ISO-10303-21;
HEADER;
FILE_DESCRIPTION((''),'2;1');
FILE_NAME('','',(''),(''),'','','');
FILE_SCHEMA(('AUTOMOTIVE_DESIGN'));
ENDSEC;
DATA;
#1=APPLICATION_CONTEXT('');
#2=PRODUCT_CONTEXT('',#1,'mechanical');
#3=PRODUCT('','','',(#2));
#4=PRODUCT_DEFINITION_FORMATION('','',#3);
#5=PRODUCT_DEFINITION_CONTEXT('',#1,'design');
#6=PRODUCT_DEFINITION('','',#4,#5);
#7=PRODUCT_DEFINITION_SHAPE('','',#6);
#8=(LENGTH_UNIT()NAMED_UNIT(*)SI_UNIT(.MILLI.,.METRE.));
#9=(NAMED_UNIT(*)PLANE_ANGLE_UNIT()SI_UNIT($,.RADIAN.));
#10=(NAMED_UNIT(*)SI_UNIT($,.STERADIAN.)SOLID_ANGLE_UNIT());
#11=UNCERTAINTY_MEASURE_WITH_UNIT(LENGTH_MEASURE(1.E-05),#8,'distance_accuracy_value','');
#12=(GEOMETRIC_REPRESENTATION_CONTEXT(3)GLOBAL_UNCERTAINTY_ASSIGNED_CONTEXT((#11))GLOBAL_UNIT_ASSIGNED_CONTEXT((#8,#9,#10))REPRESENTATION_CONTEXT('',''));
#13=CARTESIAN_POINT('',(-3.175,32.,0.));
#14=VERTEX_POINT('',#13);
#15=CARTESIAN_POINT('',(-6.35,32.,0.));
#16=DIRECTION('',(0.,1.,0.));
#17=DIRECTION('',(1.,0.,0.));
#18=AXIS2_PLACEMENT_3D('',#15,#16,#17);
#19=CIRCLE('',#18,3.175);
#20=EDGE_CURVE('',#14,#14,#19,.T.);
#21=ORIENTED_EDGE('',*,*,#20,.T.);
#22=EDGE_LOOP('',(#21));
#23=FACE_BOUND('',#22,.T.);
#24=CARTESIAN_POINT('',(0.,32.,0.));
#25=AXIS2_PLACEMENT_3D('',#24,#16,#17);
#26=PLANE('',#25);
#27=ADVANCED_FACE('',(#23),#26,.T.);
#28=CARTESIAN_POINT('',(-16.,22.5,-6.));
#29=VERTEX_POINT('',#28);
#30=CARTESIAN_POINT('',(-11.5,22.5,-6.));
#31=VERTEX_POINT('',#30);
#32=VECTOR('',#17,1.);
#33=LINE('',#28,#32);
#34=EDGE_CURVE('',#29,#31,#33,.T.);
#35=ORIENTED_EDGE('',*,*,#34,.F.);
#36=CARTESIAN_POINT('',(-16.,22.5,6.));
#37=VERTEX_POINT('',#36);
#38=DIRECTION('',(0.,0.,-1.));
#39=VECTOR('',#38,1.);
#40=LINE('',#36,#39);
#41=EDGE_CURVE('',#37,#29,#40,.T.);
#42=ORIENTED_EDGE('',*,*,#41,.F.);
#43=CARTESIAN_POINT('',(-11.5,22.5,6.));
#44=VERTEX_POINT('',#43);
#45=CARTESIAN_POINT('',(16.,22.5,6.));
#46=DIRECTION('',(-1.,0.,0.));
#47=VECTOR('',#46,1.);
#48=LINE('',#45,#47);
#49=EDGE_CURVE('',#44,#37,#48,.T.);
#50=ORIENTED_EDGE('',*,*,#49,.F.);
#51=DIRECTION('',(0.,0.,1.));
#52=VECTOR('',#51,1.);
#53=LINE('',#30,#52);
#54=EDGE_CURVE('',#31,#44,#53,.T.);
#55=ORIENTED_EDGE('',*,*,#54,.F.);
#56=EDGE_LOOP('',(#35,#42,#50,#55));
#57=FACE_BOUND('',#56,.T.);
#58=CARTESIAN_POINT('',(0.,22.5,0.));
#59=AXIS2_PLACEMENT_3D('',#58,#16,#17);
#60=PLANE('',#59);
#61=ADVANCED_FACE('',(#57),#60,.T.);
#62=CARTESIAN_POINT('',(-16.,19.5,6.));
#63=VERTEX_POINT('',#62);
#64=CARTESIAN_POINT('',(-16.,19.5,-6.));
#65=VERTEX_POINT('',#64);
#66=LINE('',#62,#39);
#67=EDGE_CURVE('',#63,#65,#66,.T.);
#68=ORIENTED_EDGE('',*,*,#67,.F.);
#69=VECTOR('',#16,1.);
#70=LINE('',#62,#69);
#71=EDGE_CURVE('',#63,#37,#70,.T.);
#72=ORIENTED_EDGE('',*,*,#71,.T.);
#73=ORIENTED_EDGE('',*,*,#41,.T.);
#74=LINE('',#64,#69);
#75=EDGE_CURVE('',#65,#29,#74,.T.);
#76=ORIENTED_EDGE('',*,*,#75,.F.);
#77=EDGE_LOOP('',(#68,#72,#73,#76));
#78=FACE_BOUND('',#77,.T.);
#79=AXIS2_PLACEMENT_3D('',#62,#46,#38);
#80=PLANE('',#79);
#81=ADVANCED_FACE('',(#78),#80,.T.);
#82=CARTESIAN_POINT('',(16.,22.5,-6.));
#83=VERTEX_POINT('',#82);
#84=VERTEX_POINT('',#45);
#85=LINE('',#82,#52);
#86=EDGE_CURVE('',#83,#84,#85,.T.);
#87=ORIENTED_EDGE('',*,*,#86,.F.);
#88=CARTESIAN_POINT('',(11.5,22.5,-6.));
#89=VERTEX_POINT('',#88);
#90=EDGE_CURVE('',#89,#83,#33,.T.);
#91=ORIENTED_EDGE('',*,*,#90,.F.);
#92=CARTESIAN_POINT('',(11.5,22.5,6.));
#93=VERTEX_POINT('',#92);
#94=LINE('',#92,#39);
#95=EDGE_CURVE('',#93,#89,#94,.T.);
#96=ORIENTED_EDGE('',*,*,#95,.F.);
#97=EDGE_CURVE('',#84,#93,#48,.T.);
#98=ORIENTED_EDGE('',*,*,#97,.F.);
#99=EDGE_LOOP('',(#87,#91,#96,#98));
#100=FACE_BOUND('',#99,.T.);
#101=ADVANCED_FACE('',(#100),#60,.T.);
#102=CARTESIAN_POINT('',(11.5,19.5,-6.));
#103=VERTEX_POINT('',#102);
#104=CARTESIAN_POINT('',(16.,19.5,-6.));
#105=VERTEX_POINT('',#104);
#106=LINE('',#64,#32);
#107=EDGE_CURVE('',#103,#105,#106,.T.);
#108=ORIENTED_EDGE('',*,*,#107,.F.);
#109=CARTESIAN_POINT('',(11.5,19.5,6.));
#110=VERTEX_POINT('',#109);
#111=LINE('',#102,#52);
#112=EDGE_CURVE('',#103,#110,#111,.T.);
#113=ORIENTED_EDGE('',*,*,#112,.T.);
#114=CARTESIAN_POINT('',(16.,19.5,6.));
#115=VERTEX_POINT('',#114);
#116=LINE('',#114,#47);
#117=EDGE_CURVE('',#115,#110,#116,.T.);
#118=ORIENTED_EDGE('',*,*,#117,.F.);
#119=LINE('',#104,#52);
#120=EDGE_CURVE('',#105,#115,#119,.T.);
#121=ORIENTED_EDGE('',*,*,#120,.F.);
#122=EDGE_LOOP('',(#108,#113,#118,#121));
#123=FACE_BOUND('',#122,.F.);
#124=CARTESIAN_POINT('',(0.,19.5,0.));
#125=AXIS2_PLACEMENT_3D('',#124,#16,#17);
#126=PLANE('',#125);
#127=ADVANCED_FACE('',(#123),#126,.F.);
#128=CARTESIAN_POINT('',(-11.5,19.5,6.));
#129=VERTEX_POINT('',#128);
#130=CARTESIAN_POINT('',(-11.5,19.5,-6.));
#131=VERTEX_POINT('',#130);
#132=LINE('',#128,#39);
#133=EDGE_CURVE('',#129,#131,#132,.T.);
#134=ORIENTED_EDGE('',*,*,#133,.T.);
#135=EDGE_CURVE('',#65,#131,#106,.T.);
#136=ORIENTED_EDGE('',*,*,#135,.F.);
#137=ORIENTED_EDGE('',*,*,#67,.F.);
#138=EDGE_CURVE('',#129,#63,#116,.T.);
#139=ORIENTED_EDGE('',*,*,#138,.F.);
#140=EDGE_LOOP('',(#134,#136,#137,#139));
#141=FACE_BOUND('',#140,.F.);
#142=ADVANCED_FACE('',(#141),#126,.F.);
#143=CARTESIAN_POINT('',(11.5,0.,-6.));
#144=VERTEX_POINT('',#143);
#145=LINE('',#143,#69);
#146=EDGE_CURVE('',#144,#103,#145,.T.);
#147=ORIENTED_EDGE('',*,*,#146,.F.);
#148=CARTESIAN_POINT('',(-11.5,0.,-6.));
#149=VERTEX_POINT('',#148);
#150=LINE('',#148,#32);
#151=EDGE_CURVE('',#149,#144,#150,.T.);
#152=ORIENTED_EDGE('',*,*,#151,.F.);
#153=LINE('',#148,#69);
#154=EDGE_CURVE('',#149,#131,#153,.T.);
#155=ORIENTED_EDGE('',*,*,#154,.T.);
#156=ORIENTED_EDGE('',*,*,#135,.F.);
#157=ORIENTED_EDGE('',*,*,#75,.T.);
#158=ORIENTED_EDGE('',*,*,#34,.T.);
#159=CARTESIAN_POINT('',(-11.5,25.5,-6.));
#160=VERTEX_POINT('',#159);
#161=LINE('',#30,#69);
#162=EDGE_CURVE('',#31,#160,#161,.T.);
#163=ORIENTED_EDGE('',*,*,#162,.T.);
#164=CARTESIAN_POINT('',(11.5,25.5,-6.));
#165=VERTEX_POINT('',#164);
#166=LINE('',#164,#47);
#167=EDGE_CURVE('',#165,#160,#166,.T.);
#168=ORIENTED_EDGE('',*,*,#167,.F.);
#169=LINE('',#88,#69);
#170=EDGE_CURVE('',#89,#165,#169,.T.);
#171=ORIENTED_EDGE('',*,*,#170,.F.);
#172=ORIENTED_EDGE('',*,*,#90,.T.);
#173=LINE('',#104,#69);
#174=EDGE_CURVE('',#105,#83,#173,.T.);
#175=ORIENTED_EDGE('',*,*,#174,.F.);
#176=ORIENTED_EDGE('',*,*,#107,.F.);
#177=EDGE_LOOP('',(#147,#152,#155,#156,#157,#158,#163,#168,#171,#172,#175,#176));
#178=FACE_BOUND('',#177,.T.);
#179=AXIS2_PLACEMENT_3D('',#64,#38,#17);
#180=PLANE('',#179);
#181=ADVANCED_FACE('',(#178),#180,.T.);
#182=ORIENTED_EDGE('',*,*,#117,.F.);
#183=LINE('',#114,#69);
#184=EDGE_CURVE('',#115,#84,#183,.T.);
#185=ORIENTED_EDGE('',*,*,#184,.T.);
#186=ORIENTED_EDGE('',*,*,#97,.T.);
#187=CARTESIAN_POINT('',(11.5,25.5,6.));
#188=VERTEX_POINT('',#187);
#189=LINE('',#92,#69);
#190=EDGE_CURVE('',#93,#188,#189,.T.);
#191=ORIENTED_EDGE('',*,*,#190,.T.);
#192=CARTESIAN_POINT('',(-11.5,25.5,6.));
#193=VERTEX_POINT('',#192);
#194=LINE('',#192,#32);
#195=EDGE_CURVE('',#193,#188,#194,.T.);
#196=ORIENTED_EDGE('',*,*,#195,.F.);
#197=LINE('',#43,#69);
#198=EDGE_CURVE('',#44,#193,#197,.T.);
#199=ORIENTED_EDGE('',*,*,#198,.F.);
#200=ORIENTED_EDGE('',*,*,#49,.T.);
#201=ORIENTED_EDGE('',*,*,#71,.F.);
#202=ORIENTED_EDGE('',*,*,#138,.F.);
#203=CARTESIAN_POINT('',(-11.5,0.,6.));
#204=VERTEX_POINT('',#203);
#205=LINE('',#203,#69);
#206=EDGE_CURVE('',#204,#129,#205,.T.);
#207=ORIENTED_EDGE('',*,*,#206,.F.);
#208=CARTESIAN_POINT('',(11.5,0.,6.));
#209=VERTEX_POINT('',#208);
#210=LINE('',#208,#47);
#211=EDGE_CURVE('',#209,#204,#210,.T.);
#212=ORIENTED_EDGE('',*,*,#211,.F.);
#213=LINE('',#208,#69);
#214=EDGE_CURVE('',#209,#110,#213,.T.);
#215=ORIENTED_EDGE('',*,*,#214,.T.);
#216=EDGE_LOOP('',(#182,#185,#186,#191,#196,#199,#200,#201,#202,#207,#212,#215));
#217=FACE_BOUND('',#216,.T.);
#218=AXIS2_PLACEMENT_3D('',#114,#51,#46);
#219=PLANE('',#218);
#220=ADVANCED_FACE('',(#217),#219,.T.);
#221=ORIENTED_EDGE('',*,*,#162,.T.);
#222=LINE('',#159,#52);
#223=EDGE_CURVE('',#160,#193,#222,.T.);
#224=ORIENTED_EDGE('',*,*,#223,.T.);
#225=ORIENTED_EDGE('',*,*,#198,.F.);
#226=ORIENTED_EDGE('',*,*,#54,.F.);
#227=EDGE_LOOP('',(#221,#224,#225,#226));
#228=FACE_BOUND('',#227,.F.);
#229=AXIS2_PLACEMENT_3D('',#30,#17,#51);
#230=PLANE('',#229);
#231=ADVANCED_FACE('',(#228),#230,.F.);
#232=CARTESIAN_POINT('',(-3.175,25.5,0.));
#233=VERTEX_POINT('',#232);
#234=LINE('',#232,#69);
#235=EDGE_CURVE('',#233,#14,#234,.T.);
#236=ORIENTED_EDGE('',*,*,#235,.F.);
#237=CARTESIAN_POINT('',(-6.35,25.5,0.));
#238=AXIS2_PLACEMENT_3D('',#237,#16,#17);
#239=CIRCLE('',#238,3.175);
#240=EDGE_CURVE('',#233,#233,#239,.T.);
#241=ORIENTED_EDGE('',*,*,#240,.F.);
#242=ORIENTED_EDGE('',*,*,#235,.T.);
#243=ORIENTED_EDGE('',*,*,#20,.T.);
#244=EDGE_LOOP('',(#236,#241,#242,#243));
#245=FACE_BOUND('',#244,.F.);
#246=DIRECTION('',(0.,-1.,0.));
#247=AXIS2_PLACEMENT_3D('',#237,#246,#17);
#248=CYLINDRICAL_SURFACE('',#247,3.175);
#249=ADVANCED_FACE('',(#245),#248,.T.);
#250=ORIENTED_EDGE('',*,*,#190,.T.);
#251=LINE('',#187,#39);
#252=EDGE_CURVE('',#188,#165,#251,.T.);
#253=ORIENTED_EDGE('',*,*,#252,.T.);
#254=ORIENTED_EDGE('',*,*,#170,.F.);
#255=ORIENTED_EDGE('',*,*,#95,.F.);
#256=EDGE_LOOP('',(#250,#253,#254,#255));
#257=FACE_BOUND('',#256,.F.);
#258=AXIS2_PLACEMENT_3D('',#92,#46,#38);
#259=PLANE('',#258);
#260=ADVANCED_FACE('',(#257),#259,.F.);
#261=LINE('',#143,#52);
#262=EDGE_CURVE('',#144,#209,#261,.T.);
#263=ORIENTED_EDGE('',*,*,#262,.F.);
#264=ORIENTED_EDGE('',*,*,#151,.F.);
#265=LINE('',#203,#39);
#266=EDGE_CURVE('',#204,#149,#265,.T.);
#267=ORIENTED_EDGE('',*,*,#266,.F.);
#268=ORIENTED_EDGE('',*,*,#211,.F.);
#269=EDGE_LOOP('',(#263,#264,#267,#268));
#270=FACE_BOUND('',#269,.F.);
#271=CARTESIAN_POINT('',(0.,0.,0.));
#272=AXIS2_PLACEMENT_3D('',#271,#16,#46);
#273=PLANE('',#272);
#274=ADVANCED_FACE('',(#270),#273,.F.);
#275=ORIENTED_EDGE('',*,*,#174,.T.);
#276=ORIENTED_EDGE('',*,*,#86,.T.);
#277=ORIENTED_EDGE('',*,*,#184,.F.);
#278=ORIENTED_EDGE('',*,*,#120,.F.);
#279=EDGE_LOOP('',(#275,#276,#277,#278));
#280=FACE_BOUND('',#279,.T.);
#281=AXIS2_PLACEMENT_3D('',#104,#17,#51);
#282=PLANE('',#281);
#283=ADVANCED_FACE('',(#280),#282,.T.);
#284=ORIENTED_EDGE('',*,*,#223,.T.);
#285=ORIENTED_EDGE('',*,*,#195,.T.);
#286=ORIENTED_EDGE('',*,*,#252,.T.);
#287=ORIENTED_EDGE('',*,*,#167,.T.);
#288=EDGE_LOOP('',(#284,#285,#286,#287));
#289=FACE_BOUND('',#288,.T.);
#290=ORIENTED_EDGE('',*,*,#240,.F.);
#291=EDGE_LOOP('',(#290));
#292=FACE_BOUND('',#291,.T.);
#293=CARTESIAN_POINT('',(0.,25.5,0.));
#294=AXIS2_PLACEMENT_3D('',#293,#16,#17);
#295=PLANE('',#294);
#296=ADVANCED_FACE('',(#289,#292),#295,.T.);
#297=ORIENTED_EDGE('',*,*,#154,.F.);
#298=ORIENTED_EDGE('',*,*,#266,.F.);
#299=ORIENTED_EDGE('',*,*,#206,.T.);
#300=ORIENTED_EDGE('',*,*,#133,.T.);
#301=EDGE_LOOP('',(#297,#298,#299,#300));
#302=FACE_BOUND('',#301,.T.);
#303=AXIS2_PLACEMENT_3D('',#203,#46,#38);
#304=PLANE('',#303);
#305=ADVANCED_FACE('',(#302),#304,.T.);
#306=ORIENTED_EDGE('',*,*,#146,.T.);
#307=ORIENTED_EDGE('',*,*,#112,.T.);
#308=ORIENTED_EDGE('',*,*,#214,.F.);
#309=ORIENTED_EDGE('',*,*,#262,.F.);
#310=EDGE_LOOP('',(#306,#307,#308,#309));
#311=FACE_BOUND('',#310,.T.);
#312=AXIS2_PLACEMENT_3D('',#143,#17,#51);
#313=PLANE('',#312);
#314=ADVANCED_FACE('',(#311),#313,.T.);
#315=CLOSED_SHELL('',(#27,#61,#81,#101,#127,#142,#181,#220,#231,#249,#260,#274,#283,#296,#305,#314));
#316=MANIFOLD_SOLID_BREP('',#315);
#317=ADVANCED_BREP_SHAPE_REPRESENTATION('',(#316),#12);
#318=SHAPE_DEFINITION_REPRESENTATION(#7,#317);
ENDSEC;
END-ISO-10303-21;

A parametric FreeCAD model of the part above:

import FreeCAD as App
import Part
import Sketcher
from FreeCAD import Vector
Q = App.Units.Quantity


def add_polygon(sketch, points):
    """Adds a closed chain of lines whose ends are joined by coincident constraints."""
    first, n = sketch.GeometryCount, len(points)
    for a, b in zip(points, points[1:] + points[:1]):
        sketch.addGeometry(Part.LineSegment(App.Vector(*a, 0), App.Vector(*b, 0)), False)
    for i in range(n):
        sketch.addConstraint(Sketcher.Constraint("Coincident", first + i, 2, first + (i + 1) % n, 1))

doc = App.newDocument("Part")
params = doc.addObject("Spreadsheet::Sheet", "Params")
for row, (alias, value) in enumerate([
    ("sketch1_width", "23 mm"),
    ("sketch1_height", "12 mm"),
    ("pad1_length", "19.5 mm"),
    ("sketch2_width", "32 mm"),
    ("sketch2_height", "12 mm"),
    ("pad2_length", "3 mm"),
    ("sketch3_width", "23 mm"),
    ("sketch3_height", "12 mm"),
    ("pad3_length", "3 mm"),
    ("sketch4_diameter", "6.35 mm"),
    ("pad4_length", "6.5 mm"),
], start=1):
    params.set(f"A{row}", alias)
    params.set(f"B{row}", "=" + value)
    params.setAlias(f"B{row}", alias)

body = doc.addObject("PartDesign::Body", "Body")

sketch1 = body.newObject("Sketcher::SketchObject", "Sketch")
sketch1.AttachmentSupport = (doc.getObject("XZ_Plane"), [""])
sketch1.MapMode = "FlatFace"
add_polygon(sketch1, [(11.5, -6), (-11.5, -6), (-11.5, 6), (11.5, 6)])
sketch1.addConstraint(Sketcher.Constraint("Horizontal", 0))
sketch1.addConstraint(Sketcher.Constraint("Vertical", 1))
sketch1.addConstraint(Sketcher.Constraint("Horizontal", 2))
sketch1.addConstraint(Sketcher.Constraint("Vertical", 3))
sketch1.addConstraint(Sketcher.Constraint("Symmetric", 0, 2, 2, 2, -1, 1))
sketch1.addConstraint(Sketcher.Constraint("DistanceX", 0, 2, 0, 1, Q("23 mm")))
sketch1.addConstraint(Sketcher.Constraint("DistanceY", 1, 1, 1, 2, Q("12 mm")))
sketch1.setExpression("Constraints[9]", "Params.sketch1_width")
sketch1.setExpression("Constraints[10]", "Params.sketch1_height")
pad1 = body.newObject("PartDesign::Pad", "Pad")
pad1.Profile = sketch1
pad1.setExpression("Length", "Params.pad1_length")
pad1.Reversed = True

sketch2 = body.newObject("Sketcher::SketchObject", "Sketch001")
sketch2.AttachmentSupport = (doc.getObject("XZ_Plane"), [""])
sketch2.MapMode = "FlatFace"
sketch2.AttachmentOffset = App.Placement(Vector(0, 0, -19.5), App.Rotation())
add_polygon(sketch2, [(-16, 6), (16, 6), (16, -6), (-16, -6)])
sketch2.addConstraint(Sketcher.Constraint("Horizontal", 0))
sketch2.addConstraint(Sketcher.Constraint("Vertical", 1))
sketch2.addConstraint(Sketcher.Constraint("Horizontal", 2))
sketch2.addConstraint(Sketcher.Constraint("Vertical", 3))
sketch2.addConstraint(Sketcher.Constraint("Symmetric", 0, 2, 2, 2, -1, 1))
sketch2.addConstraint(Sketcher.Constraint("DistanceX", 0, 1, 0, 2, Q("32 mm")))
sketch2.addConstraint(Sketcher.Constraint("DistanceY", 1, 2, 1, 1, Q("12 mm")))
sketch2.setExpression("Constraints[9]", "Params.sketch2_width")
sketch2.setExpression("Constraints[10]", "Params.sketch2_height")
pad2 = body.newObject("PartDesign::Pad", "Pad001")
pad2.Profile = sketch2
pad2.setExpression("Length", "Params.pad2_length")
pad2.Reversed = True

sketch3 = body.newObject("Sketcher::SketchObject", "Sketch002")
sketch3.AttachmentSupport = (doc.getObject("XZ_Plane"), [""])
sketch3.MapMode = "FlatFace"
sketch3.AttachmentOffset = App.Placement(Vector(0, 0, -22.5), App.Rotation())
add_polygon(sketch3, [(-11.5, -6), (-11.5, 6), (11.5, 6), (11.5, -6)])
sketch3.addConstraint(Sketcher.Constraint("Vertical", 0))
sketch3.addConstraint(Sketcher.Constraint("Horizontal", 1))
sketch3.addConstraint(Sketcher.Constraint("Vertical", 2))
sketch3.addConstraint(Sketcher.Constraint("Horizontal", 3))
sketch3.addConstraint(Sketcher.Constraint("Symmetric", 0, 2, 2, 2, -1, 1))
sketch3.addConstraint(Sketcher.Constraint("DistanceX", 1, 1, 1, 2, Q("23 mm")))
sketch3.addConstraint(Sketcher.Constraint("DistanceY", 0, 1, 0, 2, Q("12 mm")))
sketch3.setExpression("Constraints[9]", "Params.sketch3_width")
sketch3.setExpression("Constraints[10]", "Params.sketch3_height")
pad3 = body.newObject("PartDesign::Pad", "Pad002")
pad3.Profile = sketch3
pad3.setExpression("Length", "Params.pad3_length")
pad3.Reversed = True

sketch4 = body.newObject("Sketcher::SketchObject", "Sketch003")
sketch4.AttachmentSupport = (doc.getObject("XZ_Plane"), [""])
sketch4.MapMode = "FlatFace"
sketch4.AttachmentOffset = App.Placement(Vector(0, 0, -25.5), App.Rotation())
sketch4.addGeometry(Part.Circle(Vector(-6.35, 0, 0), Vector(0, 0, 1), 3.175), False)
sketch4.addConstraint(Sketcher.Constraint("PointOnObject", 0, 3, -1))
sketch4.addConstraint(Sketcher.Constraint("Diameter", 0, Q("6.35 mm")))
sketch4.addConstraint(Sketcher.Constraint("DistanceX", 0, 3, -1, 1, Q("6.35 mm")))
sketch4.setExpression("Constraints[1]", "Params.sketch4_diameter")
pad4 = body.newObject("PartDesign::Pad", "Pad003")
pad4.Profile = sketch4
pad4.setExpression("Length", "Params.pad4_length")
pad4.Reversed = True

doc.recompute()
